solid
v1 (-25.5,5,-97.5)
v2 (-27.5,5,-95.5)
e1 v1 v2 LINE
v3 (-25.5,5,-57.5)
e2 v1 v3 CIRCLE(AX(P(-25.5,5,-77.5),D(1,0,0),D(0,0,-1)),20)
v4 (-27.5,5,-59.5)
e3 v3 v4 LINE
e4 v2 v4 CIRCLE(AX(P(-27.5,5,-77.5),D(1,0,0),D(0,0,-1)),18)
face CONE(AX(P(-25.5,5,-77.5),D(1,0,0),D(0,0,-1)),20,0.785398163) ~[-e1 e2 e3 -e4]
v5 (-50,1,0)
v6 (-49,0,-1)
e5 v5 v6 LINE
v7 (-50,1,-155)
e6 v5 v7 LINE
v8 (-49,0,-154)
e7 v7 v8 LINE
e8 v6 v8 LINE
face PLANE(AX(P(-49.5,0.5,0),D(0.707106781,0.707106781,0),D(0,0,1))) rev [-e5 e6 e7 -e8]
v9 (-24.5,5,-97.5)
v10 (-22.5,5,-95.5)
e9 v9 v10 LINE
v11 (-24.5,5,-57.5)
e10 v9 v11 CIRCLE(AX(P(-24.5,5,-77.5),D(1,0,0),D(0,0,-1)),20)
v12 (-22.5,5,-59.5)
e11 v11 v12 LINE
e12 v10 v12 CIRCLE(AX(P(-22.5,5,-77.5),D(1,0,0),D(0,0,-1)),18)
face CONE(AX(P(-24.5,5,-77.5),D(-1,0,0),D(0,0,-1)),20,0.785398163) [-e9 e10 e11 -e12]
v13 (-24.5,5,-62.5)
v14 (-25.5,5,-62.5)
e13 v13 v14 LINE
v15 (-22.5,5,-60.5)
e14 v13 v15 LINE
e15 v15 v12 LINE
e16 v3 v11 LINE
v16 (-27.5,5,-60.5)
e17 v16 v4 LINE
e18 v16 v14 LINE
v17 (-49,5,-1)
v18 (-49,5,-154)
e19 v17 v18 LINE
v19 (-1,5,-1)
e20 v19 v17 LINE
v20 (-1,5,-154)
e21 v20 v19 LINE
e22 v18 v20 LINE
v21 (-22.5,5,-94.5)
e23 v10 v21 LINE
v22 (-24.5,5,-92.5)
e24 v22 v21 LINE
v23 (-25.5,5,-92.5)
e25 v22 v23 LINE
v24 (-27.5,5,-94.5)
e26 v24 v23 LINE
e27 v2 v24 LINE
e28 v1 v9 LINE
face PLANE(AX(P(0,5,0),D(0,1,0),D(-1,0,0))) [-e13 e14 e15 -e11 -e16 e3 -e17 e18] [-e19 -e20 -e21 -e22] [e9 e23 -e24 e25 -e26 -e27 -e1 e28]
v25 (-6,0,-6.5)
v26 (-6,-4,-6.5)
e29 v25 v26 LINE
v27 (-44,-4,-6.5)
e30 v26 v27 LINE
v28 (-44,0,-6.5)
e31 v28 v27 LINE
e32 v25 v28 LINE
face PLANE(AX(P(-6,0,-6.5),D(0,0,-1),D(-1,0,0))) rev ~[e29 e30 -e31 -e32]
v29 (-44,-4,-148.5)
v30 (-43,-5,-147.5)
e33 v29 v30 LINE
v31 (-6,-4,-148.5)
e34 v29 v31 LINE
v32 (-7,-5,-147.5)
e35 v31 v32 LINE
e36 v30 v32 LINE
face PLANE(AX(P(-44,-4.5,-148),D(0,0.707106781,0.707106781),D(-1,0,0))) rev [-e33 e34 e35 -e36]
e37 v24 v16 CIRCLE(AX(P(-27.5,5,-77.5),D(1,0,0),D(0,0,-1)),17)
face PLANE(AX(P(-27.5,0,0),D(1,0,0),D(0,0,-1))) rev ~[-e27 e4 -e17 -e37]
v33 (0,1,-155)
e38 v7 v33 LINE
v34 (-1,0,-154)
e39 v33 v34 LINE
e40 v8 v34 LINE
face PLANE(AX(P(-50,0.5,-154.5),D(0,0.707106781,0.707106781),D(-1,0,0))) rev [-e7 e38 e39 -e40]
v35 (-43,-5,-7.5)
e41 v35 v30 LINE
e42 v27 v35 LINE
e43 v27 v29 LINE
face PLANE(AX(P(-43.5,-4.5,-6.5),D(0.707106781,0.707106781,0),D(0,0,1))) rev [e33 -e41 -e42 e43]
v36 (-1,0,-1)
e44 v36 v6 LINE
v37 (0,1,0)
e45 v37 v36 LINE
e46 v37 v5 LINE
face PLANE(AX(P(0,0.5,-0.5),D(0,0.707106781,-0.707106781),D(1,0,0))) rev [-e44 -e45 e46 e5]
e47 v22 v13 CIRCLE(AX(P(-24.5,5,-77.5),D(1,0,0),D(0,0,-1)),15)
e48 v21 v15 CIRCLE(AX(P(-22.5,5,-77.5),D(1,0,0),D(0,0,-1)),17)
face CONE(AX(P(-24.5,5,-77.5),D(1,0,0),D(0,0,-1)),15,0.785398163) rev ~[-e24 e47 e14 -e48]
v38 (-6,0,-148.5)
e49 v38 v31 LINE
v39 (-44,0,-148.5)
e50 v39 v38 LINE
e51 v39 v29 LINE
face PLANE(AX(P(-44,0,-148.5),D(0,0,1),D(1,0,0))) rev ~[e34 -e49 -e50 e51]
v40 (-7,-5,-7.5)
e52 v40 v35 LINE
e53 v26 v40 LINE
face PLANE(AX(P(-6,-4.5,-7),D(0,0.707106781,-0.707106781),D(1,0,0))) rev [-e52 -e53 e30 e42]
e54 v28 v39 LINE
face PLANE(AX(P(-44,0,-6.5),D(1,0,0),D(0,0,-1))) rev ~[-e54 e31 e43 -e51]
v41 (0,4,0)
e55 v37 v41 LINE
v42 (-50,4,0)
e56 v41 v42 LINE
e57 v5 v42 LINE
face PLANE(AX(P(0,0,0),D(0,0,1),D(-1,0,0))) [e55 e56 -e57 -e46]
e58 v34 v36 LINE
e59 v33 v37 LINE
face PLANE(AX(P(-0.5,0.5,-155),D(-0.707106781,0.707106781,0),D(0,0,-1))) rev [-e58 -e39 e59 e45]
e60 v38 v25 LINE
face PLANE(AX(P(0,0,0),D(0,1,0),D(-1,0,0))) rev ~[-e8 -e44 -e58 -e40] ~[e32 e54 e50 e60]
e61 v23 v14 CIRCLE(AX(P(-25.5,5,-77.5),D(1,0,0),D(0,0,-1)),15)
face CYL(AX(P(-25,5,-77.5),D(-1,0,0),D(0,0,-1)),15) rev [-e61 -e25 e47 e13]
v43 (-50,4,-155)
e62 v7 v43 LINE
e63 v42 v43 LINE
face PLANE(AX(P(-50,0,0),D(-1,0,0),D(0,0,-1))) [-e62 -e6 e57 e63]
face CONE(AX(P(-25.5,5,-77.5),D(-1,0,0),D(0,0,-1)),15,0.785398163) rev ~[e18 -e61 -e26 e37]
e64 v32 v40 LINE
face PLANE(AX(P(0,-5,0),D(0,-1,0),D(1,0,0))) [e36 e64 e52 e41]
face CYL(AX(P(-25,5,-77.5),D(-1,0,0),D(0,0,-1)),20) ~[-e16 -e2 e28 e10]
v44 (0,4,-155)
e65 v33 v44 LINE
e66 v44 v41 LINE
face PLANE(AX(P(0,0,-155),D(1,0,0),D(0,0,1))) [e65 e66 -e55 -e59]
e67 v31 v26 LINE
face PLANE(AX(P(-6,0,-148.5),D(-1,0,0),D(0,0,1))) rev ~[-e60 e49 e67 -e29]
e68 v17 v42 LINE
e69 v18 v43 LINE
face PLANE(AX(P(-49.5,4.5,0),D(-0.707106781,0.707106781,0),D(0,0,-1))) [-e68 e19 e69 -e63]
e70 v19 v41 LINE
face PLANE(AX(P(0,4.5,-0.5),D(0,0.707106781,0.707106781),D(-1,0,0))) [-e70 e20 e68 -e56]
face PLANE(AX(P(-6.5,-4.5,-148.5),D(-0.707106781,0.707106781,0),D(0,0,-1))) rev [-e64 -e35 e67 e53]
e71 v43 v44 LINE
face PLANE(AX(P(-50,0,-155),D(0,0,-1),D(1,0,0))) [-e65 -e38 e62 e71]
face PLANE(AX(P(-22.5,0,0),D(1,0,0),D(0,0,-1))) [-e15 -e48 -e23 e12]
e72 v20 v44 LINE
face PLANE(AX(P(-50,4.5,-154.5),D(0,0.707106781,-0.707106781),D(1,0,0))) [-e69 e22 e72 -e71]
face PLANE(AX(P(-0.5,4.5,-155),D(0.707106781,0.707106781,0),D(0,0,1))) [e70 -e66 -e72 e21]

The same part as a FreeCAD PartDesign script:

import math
import FreeCAD as App
import Part
import Sketcher
Q = App.Units.Quantity


def edges_at(feature, points):
    """Names of the edges that pass closest to the given points."""
    edges = feature.Shape.Edges
    near = lambda p: min(range(len(edges)), key=lambda i: edges[i].distToShape(Part.Vertex(*p))[0])
    return sorted({f"Edge{near(p) + 1}" for p in points})


def add_polygon(sketch, points):
    """Adds a closed chain of lines whose ends are joined by coincident constraints."""
    first, n = sketch.GeometryCount, len(points)
    for a, b in zip(points, points[1:] + points[:1]):
        sketch.addGeometry(Part.LineSegment(App.Vector(*a, 0), App.Vector(*b, 0)), False)
    for i in range(n):
        sketch.addConstraint(Sketcher.Constraint("Coincident", first + i, 2, first + (i + 1) % n, 1))

doc = App.newDocument("Part")
body = doc.addObject("PartDesign::Body", "Body")

sketch1 = body.newObject("Sketcher::SketchObject", "Sketch")
sketch1.AttachmentSupport = (doc.getObject("XZ_Plane"), [""])
sketch1.MapMode = "FlatFace"
add_polygon(sketch1, [(-50, 0), (0, 0), (0, -155), (-50, -155)])
sketch1.addConstraint([
    Sketcher.Constraint("Horizontal", 0),
    Sketcher.Constraint("Vertical", 1),
    Sketcher.Constraint("Horizontal", 2),
    Sketcher.Constraint("Vertical", 3),
    Sketcher.Constraint("Coincident", 0, 2, -1, 1),
    Sketcher.Constraint("DistanceX", 0, 1, 0, 2, Q("50 mm")),
    Sketcher.Constraint("DistanceY", 1, 2, 1, 1, Q("155 mm")),
])
pad1 = body.newObject("PartDesign::Pad", "Pad")
pad1.Profile = sketch1
pad1.Length = 5
pad1.Reversed = True

sketch2 = body.newObject("Sketcher::SketchObject", "Sketch001")
sketch2.AttachmentSupport = (doc.getObject("XZ_Plane"), [""])
sketch2.MapMode = "FlatFace"
add_polygon(sketch2, [(-6, -148), (-6, -6), (-44, -6), (-44, -148)])
sketch2.addConstraint([
    Sketcher.Constraint("Vertical", 0),
    Sketcher.Constraint("Horizontal", 1),
    Sketcher.Constraint("Vertical", 2),
    Sketcher.Constraint("Horizontal", 3),
    Sketcher.Constraint("DistanceX", 1, 2, 1, 1, Q("38 mm")),
    Sketcher.Constraint("DistanceY", 0, 1, 0, 2, Q("142 mm")),
    Sketcher.Constraint("DistanceX", 0, 2, -1, 1, Q("6 mm")),
    Sketcher.Constraint("DistanceY", 0, 2, -1, 1, Q("6.5 mm")),
])
pad2 = body.newObject("PartDesign::Pad", "Pad001")
pad2.Profile = sketch2
pad2.Length = 5

sketch3 = body.newObject("Sketcher::SketchObject", "Sketch002")
sketch3.AttachmentSupport = (doc.getObject("YZ_Plane"), [""])
sketch3.MapMode = "FlatFace"
sketch3.AttachmentOffset = App.Placement(App.Vector(0, 0, -25), App.Rotation())
sketch3.addGeometry([
    Part.LineSegment(App.Vector(5, -92, 0), App.Vector(5, -98, 0)),
    Part.ArcOfCircle(Part.Circle(App.Vector(5, -78, 0), App.Vector(0, 0, 1), 20), math.radians(-90), math.radians(90)),
    Part.LineSegment(App.Vector(5, -58, 0), App.Vector(5, -62, 0)),
    Part.ArcOfCircle(Part.Circle(App.Vector(5, -78, 0), App.Vector(0, 0, 1), 15), math.radians(-90), math.radians(90)),
], False)
sketch3.addConstraint([
    Sketcher.Constraint("Coincident", 0, 2, 1, 1),
    Sketcher.Constraint("Coincident", 1, 2, 2, 1),
    Sketcher.Constraint("Coincident", 2, 2, 3, 2),
    Sketcher.Constraint("Coincident", 3, 1, 0, 1),
    Sketcher.Constraint("Vertical", 0),
    Sketcher.Constraint("Vertical", 2),
    Sketcher.Constraint("Coincident", 3, 3, 1, 3),
    Sketcher.Constraint("Vertical", 3, 3, 0, 2),
    Sketcher.Constraint("Vertical", 0, 2, 1, 2),
    Sketcher.Constraint("Radius", 1, Q("20 mm")),
    Sketcher.Constraint("DistanceY", 0, 2, 0, 1, Q("5 mm")),
    Sketcher.Constraint("DistanceX", -1, 1, 1, 3, Q("5 mm")),
    Sketcher.Constraint("DistanceY", 1, 3, -1, 1, Q("77.5 mm")),
])
pad3 = body.newObject("PartDesign::Pad", "Pad002")
pad3.Profile = sketch3
pad3.Length = 5
pad3.Midplane = True
doc.recompute()

chamfer = body.newObject("PartDesign::Chamfer", "Chamfer")
chamfer.Base = (pad3, edges_at(pad3, [
    (-22.5, 25, -77.5),
    (-27.5, 25, -77.5),
    (-22.5, 20, -77.5),
    (-27.5, 20, -77.5),
]))
chamfer.Size = 2
doc.recompute()

chamfer2 = body.newObject("PartDesign::Chamfer", "Chamfer001")
chamfer2.Base = (chamfer, edges_at(chamfer, [
    (0, 5, -77.5),
    (-25, 5, -155),
    (-50, 5, -77.5),
    (-25, 5, 0),
    (-25, 0, -155),
    (0, 0, -77.5),
    (-50, 0, -77.5),
    (-25, 0, 0),
]))
chamfer2.Size = 1
doc.recompute()

chamfer3 = body.newObject("PartDesign::Chamfer", "Chamfer002")
chamfer3.Base = (chamfer2, edges_at(chamfer2, [
    (-25, -5, -6.5),
    (-44, -5, -77.5),
    (-6, -5, -77.5),
    (-25, -5, -148.5),
]))
chamfer3.Size = 1

doc.recompute()
